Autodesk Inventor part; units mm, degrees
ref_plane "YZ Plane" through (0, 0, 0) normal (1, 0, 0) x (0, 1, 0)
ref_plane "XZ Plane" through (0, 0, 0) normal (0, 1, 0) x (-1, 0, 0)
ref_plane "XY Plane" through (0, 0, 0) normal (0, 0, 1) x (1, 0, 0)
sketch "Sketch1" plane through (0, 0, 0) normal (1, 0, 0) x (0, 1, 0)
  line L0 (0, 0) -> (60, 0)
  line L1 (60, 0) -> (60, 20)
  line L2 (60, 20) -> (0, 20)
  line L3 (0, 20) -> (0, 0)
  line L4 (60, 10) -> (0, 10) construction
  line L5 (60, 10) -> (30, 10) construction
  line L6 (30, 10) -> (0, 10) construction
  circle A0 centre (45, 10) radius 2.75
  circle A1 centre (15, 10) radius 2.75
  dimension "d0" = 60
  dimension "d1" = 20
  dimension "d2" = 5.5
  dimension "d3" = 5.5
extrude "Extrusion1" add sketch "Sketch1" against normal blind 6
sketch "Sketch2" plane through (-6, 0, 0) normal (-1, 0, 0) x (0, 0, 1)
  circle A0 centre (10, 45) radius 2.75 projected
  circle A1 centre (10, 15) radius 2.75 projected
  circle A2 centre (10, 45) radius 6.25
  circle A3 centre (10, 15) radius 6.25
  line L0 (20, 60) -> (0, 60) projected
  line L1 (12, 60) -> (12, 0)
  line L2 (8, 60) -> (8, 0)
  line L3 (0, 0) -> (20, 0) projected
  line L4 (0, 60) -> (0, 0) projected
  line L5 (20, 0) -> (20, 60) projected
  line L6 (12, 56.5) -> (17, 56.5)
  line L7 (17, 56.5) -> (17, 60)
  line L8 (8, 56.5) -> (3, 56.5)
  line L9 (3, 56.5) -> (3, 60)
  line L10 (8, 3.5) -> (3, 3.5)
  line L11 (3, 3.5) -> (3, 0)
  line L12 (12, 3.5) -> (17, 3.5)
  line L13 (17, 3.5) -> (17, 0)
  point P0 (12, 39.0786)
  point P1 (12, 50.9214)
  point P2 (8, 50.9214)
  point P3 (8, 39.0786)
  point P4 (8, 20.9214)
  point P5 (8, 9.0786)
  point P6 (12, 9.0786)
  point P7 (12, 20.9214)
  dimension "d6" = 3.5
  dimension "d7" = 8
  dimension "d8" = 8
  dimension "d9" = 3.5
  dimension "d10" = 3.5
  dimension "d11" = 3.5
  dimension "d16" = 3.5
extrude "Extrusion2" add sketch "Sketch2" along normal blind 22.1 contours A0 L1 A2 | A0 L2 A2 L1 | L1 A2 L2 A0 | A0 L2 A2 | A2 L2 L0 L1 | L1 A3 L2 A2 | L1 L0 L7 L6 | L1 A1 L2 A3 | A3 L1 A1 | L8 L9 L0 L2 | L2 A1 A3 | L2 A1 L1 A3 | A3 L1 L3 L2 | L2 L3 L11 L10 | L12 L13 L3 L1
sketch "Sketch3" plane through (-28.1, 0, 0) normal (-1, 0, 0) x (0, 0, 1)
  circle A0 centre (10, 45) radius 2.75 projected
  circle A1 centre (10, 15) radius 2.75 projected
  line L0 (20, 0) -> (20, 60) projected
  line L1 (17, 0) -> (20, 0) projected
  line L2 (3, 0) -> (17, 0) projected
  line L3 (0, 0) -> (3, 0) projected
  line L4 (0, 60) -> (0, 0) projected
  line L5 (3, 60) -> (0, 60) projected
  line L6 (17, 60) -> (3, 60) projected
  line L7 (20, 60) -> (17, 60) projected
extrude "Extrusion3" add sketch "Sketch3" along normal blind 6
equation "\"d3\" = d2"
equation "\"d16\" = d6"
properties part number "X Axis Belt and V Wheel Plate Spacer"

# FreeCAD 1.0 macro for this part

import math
import FreeCAD as App
import Part
import Sketcher
Q = App.Units.Quantity

doc = App.newDocument("Part")
body = doc.addObject("PartDesign::Body", "Body")

sketch1 = body.newObject("Sketcher::SketchObject", "Sketch")
sketch1.AttachmentSupport = (doc.getObject("YZ_Plane"), [""])
sketch1.MapMode = "FlatFace"
sketch1.addGeometry([
    Part.LineSegment(App.Vector(0, 20, 0), App.Vector(0, 0, 0)),
    Part.LineSegment(App.Vector(0, 0, 0), App.Vector(60, 0, 0)),
    Part.LineSegment(App.Vector(60, 0, 0), App.Vector(60, 20, 0)),
    Part.LineSegment(App.Vector(60, 20, 0), App.Vector(0, 20, 0)),
    Part.Circle(App.Vector(15, 10, 0), App.Vector(0, 0, 1), 2.8),
    Part.Circle(App.Vector(45, 10, 0), App.Vector(0, 0, 1), 2.8),
], False)
sketch1.addConstraint([
    Sketcher.Constraint("Coincident", 0, 2, 1, 1),
    Sketcher.Constraint("Coincident", 1, 2, 2, 1),
    Sketcher.Constraint("Coincident", 2, 2, 3, 1),
    Sketcher.Constraint("Coincident", 3, 2, 0, 1),
    Sketcher.Constraint("Vertical", 0),
    Sketcher.Constraint("Horizontal", 1),
    Sketcher.Constraint("Vertical", 2),
    Sketcher.Constraint("Horizontal", 3),
    Sketcher.Constraint("Coincident", 0, 2, -1, 1),
    Sketcher.Constraint("Equal", 4, 5),
    Sketcher.Constraint("Horizontal", 4, 3, 5, 3),
    Sketcher.Constraint("Diameter", 4, Q("5.5 mm")),
    Sketcher.Constraint("DistanceX", 1, 1, 1, 2, Q("60 mm")),
    Sketcher.Constraint("DistanceY", 0, 2, 0, 1, Q("20 mm")),
    Sketcher.Constraint("DistanceX", -1, 1, 4, 3, Q("15 mm")),
    Sketcher.Constraint("DistanceY", -1, 1, 4, 3, Q("10 mm")),
    Sketcher.Constraint("DistanceX", -1, 1, 5, 3, Q("45 mm")),
])
pad1 = body.newObject("PartDesign::Pad", "Pad")
pad1.Profile = sketch1
pad1.Length = 6
pad1.Reversed = True

sketch2 = body.newObject("Sketcher::SketchObject", "Sketch001")
sketch2.AttachmentSupport = (doc.getObject("YZ_Plane"), [""])
sketch2.MapMode = "FlatFace"
sketch2.AttachmentOffset = App.Placement(App.Vector(0, 0, -6), App.Rotation())
sketch2.addGeometry([
    Part.LineSegment(App.Vector(50.9, 12, 0), App.Vector(56.5, 12, 0)),
    Part.LineSegment(App.Vector(56.5, 12, 0), App.Vector(56.5, 17, 0)),
    Part.LineSegment(App.Vector(56.5, 17, 0), App.Vector(60, 17, 0)),
    Part.LineSegment(App.Vector(60, 17, 0), App.Vector(60, 3, 0)),
    Part.LineSegment(App.Vector(60, 3, 0), App.Vector(56.5, 3, 0)),
    Part.LineSegment(App.Vector(56.5, 3, 0), App.Vector(56.5, 8, 0)),
    Part.LineSegment(App.Vector(56.5, 8, 0), App.Vector(50.9, 8, 0)),
    Part.ArcOfCircle(Part.Circle(App.Vector(45, 10, 0), App.Vector(0, 0, 1), 6.2), math.radians(-161), math.radians(-19)),
    Part.LineSegment(App.Vector(39.1, 8, 0), App.Vector(20.9, 8, 0)),
    Part.ArcOfCircle(Part.Circle(App.Vector(15, 10, 0), App.Vector(0, 0, 1), 6.2), math.radians(-161), math.radians(-19)),
    Part.LineSegment(App.Vector(9.1, 8, 0), App.Vector(3.5, 8, 0)),
    Part.LineSegment(App.Vector(3.5, 8, 0), App.Vector(3.5, 3, 0)),
    Part.LineSegment(App.Vector(3.5, 3, 0), App.Vector(0, 3, 0)),
    Part.LineSegment(App.Vector(0, 3, 0), App.Vector(0, 17, 0)),
    Part.LineSegment(App.Vector(0, 17, 0), App.Vector(3.5, 17, 0)),
    Part.LineSegment(App.Vector(3.5, 17, 0), App.Vector(3.5, 12, 0)),
    Part.LineSegment(App.Vector(3.5, 12, 0), App.Vector(9.1, 12, 0)),
    Part.ArcOfCircle(Part.Circle(App.Vector(15, 10, 0), App.Vector(0, 0, 1), 6.2), math.radians(19), math.radians(161)),
    Part.LineSegment(App.Vector(20.9, 12, 0), App.Vector(39.1, 12, 0)),
    Part.ArcOfCircle(Part.Circle(App.Vector(45, 10, 0), App.Vector(0, 0, 1), 6.2), math.radians(19), math.radians(161)),
    Part.Circle(App.Vector(45, 10, 0), App.Vector(0, 0, 1), 2.8),
    Part.Circle(App.Vector(15, 10, 0), App.Vector(0, 0, 1), 2.8),
], False)
sketch2.addConstraint([
    Sketcher.Constraint("Coincident", 0, 2, 1, 1),
    Sketcher.Constraint("Coincident", 1, 2, 2, 1),
    Sketcher.Constraint("Coincident", 2, 2, 3, 1),
    Sketcher.Constraint("Coincident", 3, 2, 4, 1),
    Sketcher.Constraint("Coincident", 4, 2, 5, 1),
    Sketcher.Constraint("Coincident", 5, 2, 6, 1),
    Sketcher.Constraint("Coincident", 6, 2, 7, 2),
    Sketcher.Constraint("Coincident", 7, 1, 8, 1),
    Sketcher.Constraint("Coincident", 8, 2, 9, 2),
    Sketcher.Constraint("Coincident", 9, 1, 10, 1),
    Sketcher.Constraint("Coincident", 10, 2, 11, 1),
    Sketcher.Constraint("Coincident", 11, 2, 12, 1),
    Sketcher.Constraint("Coincident", 12, 2, 13, 1),
    Sketcher.Constraint("Coincident", 13, 2, 14, 1),
    Sketcher.Constraint("Coincident", 14, 2, 15, 1),
    Sketcher.Constraint("Coincident", 15, 2, 16, 1),
    Sketcher.Constraint("Coincident", 16, 2, 17, 2),
    Sketcher.Constraint("Coincident", 17, 1, 18, 1),
    Sketcher.Constraint("Coincident", 18, 2, 19, 2),
    Sketcher.Constraint("Coincident", 19, 1, 0, 1),
    Sketcher.Constraint("Horizontal", 0),
    Sketcher.Constraint("Vertical", 1),
    Sketcher.Constraint("Horizontal", 2),
    Sketcher.Constraint("Vertical", 3),
    Sketcher.Constraint("Horizontal", 4),
    Sketcher.Constraint("Vertical", 5),
    Sketcher.Constraint("Horizontal", 6),
    Sketcher.Constraint("Horizontal", 8),
    Sketcher.Constraint("Horizontal", 10),
    Sketcher.Constraint("Vertical", 11),
    Sketcher.Constraint("Horizontal", 12),
    Sketcher.Constraint("Vertical", 13),
    Sketcher.Constraint("Horizontal", 14),
    Sketcher.Constraint("Vertical", 15),
    Sketcher.Constraint("Horizontal", 16),
    Sketcher.Constraint("Horizontal", 18),
    Sketcher.Constraint("Coincident", 17, 3, 9, 3),
    Sketcher.Constraint("Coincident", 19, 3, 7, 3),
    Sketcher.Constraint("Coincident", 20, 3, 7, 3),
    Sketcher.Constraint("Coincident", 21, 3, 9, 3),
    Sketcher.Constraint("Equal", 7, 9),
    Sketcher.Constraint("Equal", 9, 17),
    Sketcher.Constraint("Equal", 17, 19),
    Sketcher.Constraint("Equal", 20, 21),
    Sketcher.Constraint("PointOnObject", 12, 2, -2),
    Sketcher.Constraint("Horizontal", 7, 3, 9, 3),
    Sketcher.Constraint("Horizontal", 6, 2, 7, 1),
    Sketcher.Constraint("Horizontal", 8, 2, 9, 1),
    Sketcher.Constraint("Horizontal", 4, 2, 11, 2),
    Sketcher.Constraint("Horizontal", 2, 2, 13, 2),
    Sketcher.Constraint("Horizontal", 0, 2, 15, 2),
    Sketcher.Constraint("Horizontal", 16, 2, 17, 1),
    Sketcher.Constraint("Vertical", 1, 2, 4, 2),
    Sketcher.Constraint("Vertical", 11, 2, 14, 2),
    Sketcher.Constraint("Vertical", 9, 1, 16, 2),
    Sketcher.Constraint("Equal", 6, 10),
    Sketcher.Constraint("Equal", 4, 12),
    Sketcher.Constraint("Equal", 1, 5),
    Sketcher.Constraint("DistanceX", 2, 1, 2, 2, Q("3.5 mm")),
    Sketcher.Constraint("DistanceY", -1, 1, 5, 2, Q("8 mm")),
    Sketcher.Constraint("Diameter", 20, Q("5.5 mm")),
    Sketcher.Constraint("DistanceY", 1, 1, 1, 2, Q("5 mm")),
    Sketcher.Constraint("DistanceY", 3, 2, 3, 1, Q("14 mm")),
    Sketcher.Constraint("Radius", 7, Q("6.25 mm")),
    Sketcher.Constraint("DistanceX", -1, 1, 7, 3, Q("45 mm")),
    Sketcher.Constraint("DistanceX", -1, 1, 9, 3, Q("15 mm")),
])
pad2 = body.newObject("PartDesign::Pad", "Pad001")
pad2.Profile = sketch2
pad2.Length = 22.1
pad2.Reversed = True

sketch3 = body.newObject("Sketcher::SketchObject", "Sketch002")
sketch3.AttachmentSupport = (doc.getObject("YZ_Plane"), [""])
sketch3.MapMode = "FlatFace"
sketch3.AttachmentOffset = App.Placement(App.Vector(0, 0, -28.1), App.Rotation())
sketch3.addGeometry([
    Part.LineSegment(App.Vector(0, 0, 0), App.Vector(0, 20, 0)),
    Part.LineSegment(App.Vector(0, 20, 0), App.Vector(60, 20, 0)),
    Part.LineSegment(App.Vector(60, 20, 0), App.Vector(60, 0, 0)),
    Part.LineSegment(App.Vector(60, 0, 0), App.Vector(0, 0, 0)),
    Part.Circle(App.Vector(15, 10, 0), App.Vector(0, 0, 1), 2.8),
    Part.Circle(App.Vector(45, 10, 0), App.Vector(0, 0, 1), 2.8),
], False)
sketch3.addConstraint([
    Sketcher.Constraint("Coincident", 0, 2, 1, 1),
    Sketcher.Constraint("Coincident", 1, 2, 2, 1),
    Sketcher.Constraint("Coincident", 2, 2, 3, 1),
    Sketcher.Constraint("Coincident", 3, 2, 0, 1),
    Sketcher.Constraint("Vertical", 0),
    Sketcher.Constraint("Horizontal", 1),
    Sketcher.Constraint("Vertical", 2),
    Sketcher.Constraint("Horizontal", 3),
    Sketcher.Constraint("Coincident", 3, 2, -1, 1),
    Sketcher.Constraint("Equal", 4, 5),
    Sketcher.Constraint("Horizontal", 4, 3, 5, 3),
    Sketcher.Constraint("Diameter", 4, Q("5.5 mm")),
    Sketcher.Constraint("DistanceX", 1, 1, 1, 2, Q("60 mm")),
    Sketcher.Constraint("DistanceY", 0, 1, 0, 2, Q("20 mm")),
    Sketcher.Constraint("DistanceX", -1, 1, 4, 3, Q("15 mm")),
    Sketcher.Constraint("DistanceY", -1, 1, 4, 3, Q("10 mm")),
    Sketcher.Constraint("DistanceX", -1, 1, 5, 3, Q("45 mm")),
])
pad3 = body.newObject("PartDesign::Pad", "Pad002")
pad3.Profile = sketch3
pad3.Length = 6
pad3.Reversed = True

doc.recompute()
